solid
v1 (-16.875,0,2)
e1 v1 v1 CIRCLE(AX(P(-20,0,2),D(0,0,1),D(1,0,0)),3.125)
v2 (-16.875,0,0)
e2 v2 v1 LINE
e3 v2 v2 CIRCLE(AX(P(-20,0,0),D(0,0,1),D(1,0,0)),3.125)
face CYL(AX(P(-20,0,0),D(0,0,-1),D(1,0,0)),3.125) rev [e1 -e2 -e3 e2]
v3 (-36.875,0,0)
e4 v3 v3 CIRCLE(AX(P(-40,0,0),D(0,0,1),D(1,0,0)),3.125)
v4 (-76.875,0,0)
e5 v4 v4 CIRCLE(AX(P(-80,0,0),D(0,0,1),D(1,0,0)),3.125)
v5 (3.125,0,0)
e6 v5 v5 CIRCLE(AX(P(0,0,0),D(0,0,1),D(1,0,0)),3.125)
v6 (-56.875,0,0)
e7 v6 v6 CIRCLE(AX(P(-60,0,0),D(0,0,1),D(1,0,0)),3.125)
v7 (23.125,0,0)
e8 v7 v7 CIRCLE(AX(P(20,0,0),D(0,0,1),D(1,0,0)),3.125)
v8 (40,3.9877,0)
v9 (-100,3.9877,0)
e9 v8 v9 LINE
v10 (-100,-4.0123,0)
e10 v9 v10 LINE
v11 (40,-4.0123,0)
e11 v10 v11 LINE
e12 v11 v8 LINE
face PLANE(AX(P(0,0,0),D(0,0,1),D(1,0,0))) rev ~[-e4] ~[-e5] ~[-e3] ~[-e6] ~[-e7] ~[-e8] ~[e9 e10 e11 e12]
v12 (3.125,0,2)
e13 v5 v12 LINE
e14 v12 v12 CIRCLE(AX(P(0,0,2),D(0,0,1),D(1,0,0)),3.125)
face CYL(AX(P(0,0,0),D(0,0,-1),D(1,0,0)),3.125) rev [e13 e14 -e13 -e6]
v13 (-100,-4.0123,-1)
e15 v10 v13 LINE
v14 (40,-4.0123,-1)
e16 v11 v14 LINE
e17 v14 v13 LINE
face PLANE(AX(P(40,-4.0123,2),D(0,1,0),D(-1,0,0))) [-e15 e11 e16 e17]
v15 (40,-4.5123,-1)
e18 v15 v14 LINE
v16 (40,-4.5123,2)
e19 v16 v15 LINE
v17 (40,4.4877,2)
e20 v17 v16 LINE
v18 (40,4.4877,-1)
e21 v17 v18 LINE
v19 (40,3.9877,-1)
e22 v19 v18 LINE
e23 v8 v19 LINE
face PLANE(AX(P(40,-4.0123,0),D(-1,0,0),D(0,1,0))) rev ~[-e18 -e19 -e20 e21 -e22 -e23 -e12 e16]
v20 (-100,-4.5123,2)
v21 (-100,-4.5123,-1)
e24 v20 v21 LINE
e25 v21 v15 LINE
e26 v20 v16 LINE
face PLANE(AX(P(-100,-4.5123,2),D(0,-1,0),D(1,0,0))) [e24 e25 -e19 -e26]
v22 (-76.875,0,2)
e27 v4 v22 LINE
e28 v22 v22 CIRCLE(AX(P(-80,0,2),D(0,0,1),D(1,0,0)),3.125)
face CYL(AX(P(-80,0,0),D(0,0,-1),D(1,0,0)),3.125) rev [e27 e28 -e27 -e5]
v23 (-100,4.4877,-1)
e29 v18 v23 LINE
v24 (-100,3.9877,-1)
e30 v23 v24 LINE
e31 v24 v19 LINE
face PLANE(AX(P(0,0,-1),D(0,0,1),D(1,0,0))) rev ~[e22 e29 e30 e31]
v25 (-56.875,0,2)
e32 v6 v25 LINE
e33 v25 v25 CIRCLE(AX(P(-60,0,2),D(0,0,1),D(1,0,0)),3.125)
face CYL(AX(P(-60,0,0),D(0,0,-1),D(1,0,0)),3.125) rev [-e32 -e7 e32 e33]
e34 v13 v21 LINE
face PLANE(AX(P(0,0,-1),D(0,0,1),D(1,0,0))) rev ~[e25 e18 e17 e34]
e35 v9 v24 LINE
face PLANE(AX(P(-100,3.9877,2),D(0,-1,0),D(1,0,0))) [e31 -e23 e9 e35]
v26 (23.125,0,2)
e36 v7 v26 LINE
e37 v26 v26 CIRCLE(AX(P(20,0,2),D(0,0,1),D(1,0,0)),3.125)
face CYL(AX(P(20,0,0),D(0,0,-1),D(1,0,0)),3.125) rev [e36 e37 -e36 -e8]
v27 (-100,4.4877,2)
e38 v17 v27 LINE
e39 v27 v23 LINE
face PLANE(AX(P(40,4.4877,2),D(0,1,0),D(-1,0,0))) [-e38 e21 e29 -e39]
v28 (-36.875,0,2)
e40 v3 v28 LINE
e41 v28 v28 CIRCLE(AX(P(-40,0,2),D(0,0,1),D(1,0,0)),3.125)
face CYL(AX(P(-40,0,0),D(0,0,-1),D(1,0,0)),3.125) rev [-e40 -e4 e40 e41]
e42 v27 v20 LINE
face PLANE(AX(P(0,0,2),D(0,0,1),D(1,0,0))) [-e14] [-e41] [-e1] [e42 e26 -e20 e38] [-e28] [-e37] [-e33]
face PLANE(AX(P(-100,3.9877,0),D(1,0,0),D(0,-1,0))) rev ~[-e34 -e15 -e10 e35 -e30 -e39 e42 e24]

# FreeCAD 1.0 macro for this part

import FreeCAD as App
import Part
import Sketcher

V = App.Vector

doc = App.newDocument("Part")
body = doc.addObject("PartDesign::Body", "Body")

# Sketch on XY plane
sketch1 = body.newObject("Sketcher::SketchObject", "Sketch")
sketch1.AttachmentSupport = (doc.getObject("XY_Plane"), [""])
sketch1.MapMode = "FlatFace"
sketch1.addGeometry(Part.LineSegment(V(40, -4.0123, 0), V(40, 3.9877, 0)), False)
sketch1.addGeometry(Part.LineSegment(V(40, 3.9877, 0), V(-100, 3.9877, 0)), False)
sketch1.addGeometry(Part.LineSegment(V(-100, 3.9877, 0), V(-100, -4.0123, 0)), False)
sketch1.addGeometry(Part.LineSegment(V(-100, -4.0123, 0), V(40, -4.0123, 0)), False)
sketch1.addGeometry(Part.Circle(V(-80, 0, 0), V(0, 0, 1), 3.125), False)
sketch1.addGeometry(Part.Circle(V(-60, 0, 0), V(0, 0, 1), 3.125), False)
sketch1.addGeometry(Part.Circle(V(-40, 0, 0), V(0, 0, 1), 3.125), False)
sketch1.addGeometry(Part.Circle(V(-20, 0, 0), V(0, 0, 1), 3.125), False)
sketch1.addGeometry(Part.Circle(V(0, 0, 0), V(0, 0, 1), 3.125), False)
sketch1.addGeometry(Part.Circle(V(20, 0, 0), V(0, 0, 1), 3.125), False)
sketch1.addConstraint(Sketcher.Constraint("Coincident", 0, 2, 1, 1))
sketch1.addConstraint(Sketcher.Constraint("Coincident", 1, 2, 2, 1))
sketch1.addConstraint(Sketcher.Constraint("Coincident", 2, 2, 3, 1))
sketch1.addConstraint(Sketcher.Constraint("Coincident", 3, 2, 0, 1))
sketch1.addConstraint(Sketcher.Constraint("Vertical", 0))
sketch1.addConstraint(Sketcher.Constraint("Horizontal", 1))
sketch1.addConstraint(Sketcher.Constraint("Vertical", 2))
sketch1.addConstraint(Sketcher.Constraint("Horizontal", 3))
sketch1.addConstraint(Sketcher.Constraint("Coincident", 8, 3, -1, 1))
sketch1.addConstraint(Sketcher.Constraint("Equal", 4, 5))
sketch1.addConstraint(Sketcher.Constraint("Equal", 5, 6))
sketch1.addConstraint(Sketcher.Constraint("Equal", 6, 7))
sketch1.addConstraint(Sketcher.Constraint("Equal", 7, 8))
sketch1.addConstraint(Sketcher.Constraint("Equal", 8, 9))
sketch1.addConstraint(Sketcher.Constraint("Symmetric", 7, 3, 9, 3, -1, 1))
sketch1.addConstraint(Sketcher.Constraint("PointOnObject", 4, 3, -1))
sketch1.addConstraint(Sketcher.Constraint("PointOnObject", 5, 3, -1))
sketch1.addConstraint(Sketcher.Constraint("PointOnObject", 6, 3, -1))
sketch1.addConstraint(Sketcher.Constraint("PointOnObject", 7, 3, -1))
sketch1.addConstraint(Sketcher.Constraint("Diameter", 4, 6.25))
sketch1.addConstraint(Sketcher.Constraint("DistanceX", 1, 2, 1, 1, 140.0))
sketch1.addConstraint(Sketcher.Constraint("DistanceY", 0, 1, 0, 2, 8.0))
sketch1.addConstraint(Sketcher.Constraint("DistanceX", 6, 3, -1, 1, 40.0))
sketch1.addConstraint(Sketcher.Constraint("DistanceX", 7, 3, -1, 1, 20.0))
sketch1.addConstraint(Sketcher.Constraint("DistanceX", -1, 1, 0, 2, 40.0))
sketch1.addConstraint(Sketcher.Constraint("DistanceX", 4, 3, 5, 3, 20.0))
sketch1.addConstraint(Sketcher.Constraint("DistanceX", 5, 3, 6, 3, 20.0))
sketch1.addConstraint(Sketcher.Constraint("DistanceY", -1, 1, 0, 2, 3.9877))
pad1 = body.newObject("PartDesign::Pad", "Pad")
pad1.Profile = sketch1
pad1.Length = 2

# Sketch on XY plane
sketch2 = body.newObject("Sketcher::SketchObject", "Sketch001")
sketch2.AttachmentSupport = (doc.getObject("XY_Plane"), [""])
sketch2.MapMode = "FlatFace"
sketch2.AttachmentOffset = App.Placement(V(0, 0, 2), App.Rotation())
sketch2.addGeometry(Part.LineSegment(V(-100, 4.4877, 0), V(-100, 3.9877, 0)), False)
sketch2.addGeometry(Part.LineSegment(V(-100, 3.9877, 0), V(40, 3.9877, 0)), False)
sketch2.addGeometry(Part.LineSegment(V(40, 3.9877, 0), V(40, 4.4877, 0)), False)
sketch2.addGeometry(Part.LineSegment(V(40, 4.4877, 0), V(-100, 4.4877, 0)), False)
sketch2.addGeometry(Part.LineSegment(V(40, -4.5123, 0), V(40, -4.0123, 0)), False)
sketch2.addGeometry(Part.LineSegment(V(40, -4.0123, 0), V(-100, -4.0123, 0)), False)
sketch2.addGeometry(Part.LineSegment(V(-100, -4.0123, 0), V(-100, -4.5123, 0)), False)
sketch2.addGeometry(Part.LineSegment(V(-100, -4.5123, 0), V(40, -4.5123, 0)), False)
sketch2.addConstraint(Sketcher.Constraint("Coincident", 0, 2, 1, 1))
sketch2.addConstraint(Sketcher.Constraint("Coincident", 1, 2, 2, 1))
sketch2.addConstraint(Sketcher.Constraint("Coincident", 2, 2, 3, 1))
sketch2.addConstraint(Sketcher.Constraint("Coincident", 3, 2, 0, 1))
sketch2.addConstraint(Sketcher.Constraint("Coincident", 4, 2, 5, 1))
sketch2.addConstraint(Sketcher.Constraint("Coincident", 5, 2, 6, 1))
sketch2.addConstraint(Sketcher.Constraint("Coincident", 6, 2, 7, 1))
sketch2.addConstraint(Sketcher.Constraint("Coincident", 7, 2, 4, 1))
sketch2.addConstraint(Sketcher.Constraint("Vertical", 0))
sketch2.addConstraint(Sketcher.Constraint("Horizontal", 1))
sketch2.addConstraint(Sketcher.Constraint("Vertical", 2))
sketch2.addConstraint(Sketcher.Constraint("Horizontal", 3))
sketch2.addConstraint(Sketcher.Constraint("Vertical", 4))
sketch2.addConstraint(Sketcher.Constraint("Horizontal", 5))
sketch2.addConstraint(Sketcher.Constraint("Vertical", 6))
sketch2.addConstraint(Sketcher.Constraint("Horizontal", 7))
sketch2.addConstraint(Sketcher.Constraint("Vertical", 2, 2, 4, 2))
sketch2.addConstraint(Sketcher.Constraint("Vertical", 3, 2, 5, 2))
sketch2.addConstraint(Sketcher.Constraint("Equal", 2, 4))
sketch2.addConstraint(Sketcher.Constraint("DistanceX", 1, 1, 1, 2, 140.0))
sketch2.addConstraint(Sketcher.Constraint("DistanceY", 0, 2, 0, 1, 0.5))
sketch2.addConstraint(Sketcher.Constraint("DistanceX", 0, 2, -1, 1, 100.0))
sketch2.addConstraint(Sketcher.Constraint("DistanceY", 4, 2, 1, 2, 8.0))
sketch2.addConstraint(Sketcher.Constraint("DistanceY", -1, 1, 0, 2, 3.9877))
pad2 = body.newObject("PartDesign::Pad", "Pad001")
pad2.Profile = sketch2
pad2.Length = 3
pad2.Reversed = True

doc.recompute()
